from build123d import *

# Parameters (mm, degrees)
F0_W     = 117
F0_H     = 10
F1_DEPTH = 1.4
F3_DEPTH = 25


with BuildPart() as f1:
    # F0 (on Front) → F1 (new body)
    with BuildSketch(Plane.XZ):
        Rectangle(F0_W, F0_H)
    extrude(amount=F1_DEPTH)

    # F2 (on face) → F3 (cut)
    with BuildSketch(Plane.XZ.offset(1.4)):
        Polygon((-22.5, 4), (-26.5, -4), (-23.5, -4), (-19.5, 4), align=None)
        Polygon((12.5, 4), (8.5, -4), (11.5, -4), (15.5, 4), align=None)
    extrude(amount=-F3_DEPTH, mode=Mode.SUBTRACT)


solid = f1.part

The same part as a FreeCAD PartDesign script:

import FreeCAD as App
import Part
import Sketcher
Q = App.Units.Quantity

doc = App.newDocument("Part")
body = doc.addObject("PartDesign::Body", "Body")

sketch1 = body.newObject("Sketcher::SketchObject", "Sketch")
sketch1.AttachmentSupport = (doc.getObject("XZ_Plane"), [""])
sketch1.MapMode = "FlatFace"
sketch1.addGeometry([
    Part.LineSegment(App.Vector(-58, 5, 0), App.Vector(-58, -5, 0)),
    Part.LineSegment(App.Vector(-58, -5, 0), App.Vector(58, -5, 0)),
    Part.LineSegment(App.Vector(58, -5, 0), App.Vector(58, 5, 0)),
    Part.LineSegment(App.Vector(58, 5, 0), App.Vector(-58, 5, 0)),
], False)
sketch1.addConstraint([
    Sketcher.Constraint("Coincident", 0, 2, 1, 1),
    Sketcher.Constraint("Coincident", 1, 2, 2, 1),
    Sketcher.Constraint("Coincident", 2, 2, 3, 1),
    Sketcher.Constraint("Coincident", 3, 2, 0, 1),
    Sketcher.Constraint("Vertical", 0),
    Sketcher.Constraint("Horizontal", 1),
    Sketcher.Constraint("Vertical", 2),
    Sketcher.Constraint("Horizontal", 3),
    Sketcher.Constraint("Symmetric", 0, 2, 2, 2, -1, 1),
    Sketcher.Constraint("DistanceX", 1, 1, 1, 2, Q("117 mm")),
    Sketcher.Constraint("DistanceY", 0, 2, 0, 1, Q("10 mm")),
])
pad1 = body.newObject("PartDesign::Pad", "Pad")
pad1.Profile = sketch1
pad1.Length = 1.4

sketch2 = body.newObject("Sketcher::SketchObject", "Sketch001")
sketch2.AttachmentSupport = (doc.getObject("XZ_Plane"), [""])
sketch2.MapMode = "FlatFace"
sketch2.AttachmentOffset = App.Placement(App.Vector(0, 0, 1.4), App.Rotation())
sketch2.addGeometry([
    Part.LineSegment(App.Vector(-22.5, 4, 0), App.Vector(-26.5, -4, 0)),
    Part.LineSegment(App.Vector(-26.5, -4, 0), App.Vector(-23.5, -4, 0)),
    Part.LineSegment(App.Vector(-23.5, -4, 0), App.Vector(-19.5, 4, 0)),
    Part.LineSegment(App.Vector(-19.5, 4, 0), App.Vector(-22.5, 4, 0)),
    Part.LineSegment(App.Vector(12.5, 4, 0), App.Vector(8.5, -4, 0)),
    Part.LineSegment(App.Vector(8.5, -4, 0), App.Vector(11.5, -4, 0)),
    Part.LineSegment(App.Vector(11.5, -4, 0), App.Vector(15.5, 4, 0)),
    Part.LineSegment(App.Vector(15.5, 4, 0), App.Vector(12.5, 4, 0)),
], False)
sketch2.addConstraint([
    Sketcher.Constraint("Coincident", 0, 2, 1, 1),
    Sketcher.Constraint("Coincident", 1, 2, 2, 1),
    Sketcher.Constraint("Coincident", 2, 2, 3, 1),
    Sketcher.Constraint("Coincident", 3, 2, 0, 1),
    Sketcher.Constraint("Coincident", 4, 2, 5, 1),
    Sketcher.Constraint("Coincident", 5, 2, 6, 1),
    Sketcher.Constraint("Coincident", 6, 2, 7, 1),
    Sketcher.Constraint("Coincident", 7, 2, 4, 1),
    Sketcher.Constraint("Horizontal", 1),
    Sketcher.Constraint("Horizontal", 3),
    Sketcher.Constraint("Horizontal", 5),
    Sketcher.Constraint("Horizontal", 7),
    Sketcher.Constraint("Parallel", 0, 2),
    Sketcher.Constraint("Parallel", 2, 4),
    Sketcher.Constraint("Parallel", 4, 6),
    Sketcher.Constraint("Horizontal", 1, 2, 4, 2),
    Sketcher.Constraint("Horizontal", 3, 2, 6, 2),
    Sketcher.Constraint("Equal", 3, 5),
    Sketcher.Constraint("DistanceX", 1, 1, 1, 2, Q("3 mm")),
    Sketcher.Constraint("DistanceY", 0, 2, -1, 1, Q("4 mm")),
    Sketcher.Constraint("DistanceY", -1, 1, 2, 2, Q("4 mm")),
    Sketcher.Constraint("DistanceX", 1, 2, 2, 2, Q("4 mm")),
    Sketcher.Constraint("DistanceX", 2, 2, 4, 2, Q("28 mm")),
    Sketcher.Constraint("DistanceX", 0, 2, -1, 1, Q("26.5 mm")),
])
pocket1 = body.newObject("PartDesign::Pocket", "Pocket")
pocket1.Profile = sketch2
pocket1.Length = 25

doc.recompute()
